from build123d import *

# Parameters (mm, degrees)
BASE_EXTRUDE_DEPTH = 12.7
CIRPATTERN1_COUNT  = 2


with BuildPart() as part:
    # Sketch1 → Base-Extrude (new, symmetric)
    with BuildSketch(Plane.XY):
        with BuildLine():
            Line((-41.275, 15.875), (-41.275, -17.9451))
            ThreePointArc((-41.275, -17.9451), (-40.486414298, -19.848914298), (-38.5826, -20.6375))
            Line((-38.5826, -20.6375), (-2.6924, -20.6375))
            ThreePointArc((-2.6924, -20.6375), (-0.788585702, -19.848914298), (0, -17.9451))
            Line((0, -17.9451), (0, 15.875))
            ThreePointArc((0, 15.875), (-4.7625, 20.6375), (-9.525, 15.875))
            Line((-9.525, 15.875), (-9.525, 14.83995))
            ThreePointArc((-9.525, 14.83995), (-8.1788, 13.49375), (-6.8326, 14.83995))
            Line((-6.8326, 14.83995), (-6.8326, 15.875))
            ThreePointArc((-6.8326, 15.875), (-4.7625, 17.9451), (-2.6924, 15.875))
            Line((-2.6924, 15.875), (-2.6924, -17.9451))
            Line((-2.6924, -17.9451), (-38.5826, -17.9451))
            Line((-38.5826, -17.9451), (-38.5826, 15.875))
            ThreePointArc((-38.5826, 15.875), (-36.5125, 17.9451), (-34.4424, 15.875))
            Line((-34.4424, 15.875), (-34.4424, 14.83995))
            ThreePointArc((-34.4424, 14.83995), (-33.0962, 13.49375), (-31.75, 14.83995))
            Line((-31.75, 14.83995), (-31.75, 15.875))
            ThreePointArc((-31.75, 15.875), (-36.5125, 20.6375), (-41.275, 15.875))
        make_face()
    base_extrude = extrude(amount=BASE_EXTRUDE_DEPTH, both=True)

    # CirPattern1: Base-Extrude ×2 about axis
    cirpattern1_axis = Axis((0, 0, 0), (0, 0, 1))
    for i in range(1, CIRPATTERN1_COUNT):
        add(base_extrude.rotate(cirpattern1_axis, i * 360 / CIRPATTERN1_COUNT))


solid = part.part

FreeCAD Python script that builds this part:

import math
import FreeCAD as App
import Part
import Sketcher
Q = App.Units.Quantity

doc = App.newDocument("Part")
body = doc.addObject("PartDesign::Body", "Body")

# Sketch on XY plane
sketch1 = doc.addObject("Sketcher::SketchObject", "Sketch")
body.addObject(sketch1)
sketch1.AttachmentSupport = (doc.XY_Plane, [""])
sketch1.MapMode = "FlatFace"
sketch1.addGeometry([
    Part.LineSegment(App.Vector(-41.275, 15.875, 0), App.Vector(-41.275, -17.9451, 0)),  # 0
    Part.ArcOfCircle(Part.Circle(App.Vector(-38.5826, -17.9451, 0), App.Vector(0, 0, 1), 2.6924), math.radians(180), math.radians(270)),  # 1
    Part.LineSegment(App.Vector(-38.5826, -20.6375, 0), App.Vector(-2.6924, -20.6375, 0)),  # 2
    Part.ArcOfCircle(Part.Circle(App.Vector(-2.6924, -17.9451, 0), App.Vector(0, 0, 1), 2.6924), math.radians(-90), math.radians(0)),  # 3
    Part.LineSegment(App.Vector(0, -17.9451, 0), App.Vector(0, 15.875, 0)),  # 4
    Part.ArcOfCircle(Part.Circle(App.Vector(-4.7625, 15.875, 0), App.Vector(0, 0, 1), 4.7625), math.radians(0), math.radians(180)),  # 5
    Part.LineSegment(App.Vector(-9.525, 15.875, 0), App.Vector(-9.525, 14.83995, 0)),  # 6
    Part.ArcOfCircle(Part.Circle(App.Vector(-8.1788, 14.83995, 0), App.Vector(0, 0, 1), 1.3462), math.radians(180), math.radians(360)),  # 7
    Part.LineSegment(App.Vector(-6.8326, 14.83995, 0), App.Vector(-6.8326, 15.875, 0)),  # 8
    Part.ArcOfCircle(Part.Circle(App.Vector(-4.7625, 15.875, 0), App.Vector(0, 0, 1), 2.0701), math.radians(0), math.radians(180)),  # 9
    Part.LineSegment(App.Vector(-2.6924, 15.875, 0), App.Vector(-2.6924, -17.9451, 0)),  # 10
    Part.LineSegment(App.Vector(-2.6924, -17.9451, 0), App.Vector(-38.5826, -17.9451, 0)),  # 11
    Part.LineSegment(App.Vector(-38.5826, -17.9451, 0), App.Vector(-38.5826, 15.875, 0)),  # 12
    Part.ArcOfCircle(Part.Circle(App.Vector(-36.5125, 15.875, 0), App.Vector(0, 0, 1), 2.0701), math.radians(0), math.radians(180)),  # 13
    Part.LineSegment(App.Vector(-34.4424, 15.875, 0), App.Vector(-34.4424, 14.83995, 0)),  # 14
    Part.ArcOfCircle(Part.Circle(App.Vector(-33.0962, 14.83995, 0), App.Vector(0, 0, 1), 1.3462), math.radians(180), math.radians(360)),  # 15
    Part.LineSegment(App.Vector(-31.75, 14.83995, 0), App.Vector(-31.75, 15.875, 0)),  # 16
    Part.ArcOfCircle(Part.Circle(App.Vector(-36.5125, 15.875, 0), App.Vector(0, 0, 1), 4.7625), math.radians(0), math.radians(180)),  # 17
], False)
sketch1.addConstraint([
    Sketcher.Constraint("Tangent", 0, 2, 1, 1),
    Sketcher.Constraint("Tangent", 1, 2, 2, 1),
    Sketcher.Constraint("Tangent", 2, 2, 3, 1),
    Sketcher.Constraint("Tangent", 3, 2, 4, 1),
    Sketcher.Constraint("Tangent", 4, 2, 5, 1),
    Sketcher.Constraint("Tangent", 5, 2, 6, 1),
    Sketcher.Constraint("Tangent", 6, 2, 7, 1),
    Sketcher.Constraint("Tangent", 7, 2, 8, 1),
    Sketcher.Constraint("Tangent", 8, 2, 9, 2),
    Sketcher.Constraint("Tangent", 9, 1, 10, 1),
    Sketcher.Constraint("Coincident", 10, 2, 11, 1),
    Sketcher.Constraint("Coincident", 11, 2, 12, 1),
    Sketcher.Constraint("Tangent", 12, 2, 13, 2),
    Sketcher.Constraint("Tangent", 13, 1, 14, 1),
    Sketcher.Constraint("Tangent", 14, 2, 15, 1),
    Sketcher.Constraint("Tangent", 15, 2, 16, 1),
    Sketcher.Constraint("Tangent", 16, 2, 17, 1),
    Sketcher.Constraint("Tangent", 17, 2, 0, 1),
    Sketcher.Constraint("Vertical", 0),
    Sketcher.Constraint("Horizontal", 2),
    Sketcher.Constraint("Vertical", 4),
    Sketcher.Constraint("Vertical", 6),
    Sketcher.Constraint("Vertical", 8),
    Sketcher.Constraint("Vertical", 10),
    Sketcher.Constraint("Horizontal", 11),
    Sketcher.Constraint("Vertical", 12),
    Sketcher.Constraint("Vertical", 14),
    Sketcher.Constraint("Vertical", 16),
    Sketcher.Constraint("Coincident", 9, 3, 5, 3),
    Sketcher.Constraint("Coincident", 17, 3, 13, 3),
    Sketcher.Constraint("Coincident", 10, 2, 3, 3),
    Sketcher.Constraint("Coincident", 11, 2, 1, 3),
    Sketcher.Constraint("Equal", 9, 13),
    Sketcher.Constraint("PointOnObject", 3, 2, -2),
    Sketcher.Constraint("Horizontal", 9, 3, 13, 3),
    Sketcher.Constraint("Horizontal", 7, 3, 15, 3),
    Sketcher.Constraint("Radius", 1, Q("0.106 in")),
    Sketcher.Constraint("Radius", 5, Q("0.1875 in")),
    Sketcher.Constraint("DistanceX", 2, 1, 2, 2, Q("1.413 in")),
    Sketcher.Constraint("DistanceY", 0, 2, 0, 1, Q("1.3315 in")),
    Sketcher.Constraint("DistanceY", -1, 1, 5, 3, Q("0.625 in")),
    Sketcher.Constraint("DistanceY", 6, 2, 6, 1, Q("1.03505 mm")),
])
pad1 = doc.addObject("PartDesign::Pad", "Pad")
body.addObject(pad1)
pad1.Profile = sketch1
pad1.Length = Q("1 in")
pad1.Midplane = True
doc.recompute()

polarpattern = doc.addObject("PartDesign::PolarPattern", "PolarPattern")
body.addObject(polarpattern)
polarpattern.Originals = [pad1]
polarpattern.Axis = (doc.Z_Axis, [""])
polarpattern.Angle = 360
polarpattern.Occurrences = 2
body.Tip = polarpattern

doc.recompute()
